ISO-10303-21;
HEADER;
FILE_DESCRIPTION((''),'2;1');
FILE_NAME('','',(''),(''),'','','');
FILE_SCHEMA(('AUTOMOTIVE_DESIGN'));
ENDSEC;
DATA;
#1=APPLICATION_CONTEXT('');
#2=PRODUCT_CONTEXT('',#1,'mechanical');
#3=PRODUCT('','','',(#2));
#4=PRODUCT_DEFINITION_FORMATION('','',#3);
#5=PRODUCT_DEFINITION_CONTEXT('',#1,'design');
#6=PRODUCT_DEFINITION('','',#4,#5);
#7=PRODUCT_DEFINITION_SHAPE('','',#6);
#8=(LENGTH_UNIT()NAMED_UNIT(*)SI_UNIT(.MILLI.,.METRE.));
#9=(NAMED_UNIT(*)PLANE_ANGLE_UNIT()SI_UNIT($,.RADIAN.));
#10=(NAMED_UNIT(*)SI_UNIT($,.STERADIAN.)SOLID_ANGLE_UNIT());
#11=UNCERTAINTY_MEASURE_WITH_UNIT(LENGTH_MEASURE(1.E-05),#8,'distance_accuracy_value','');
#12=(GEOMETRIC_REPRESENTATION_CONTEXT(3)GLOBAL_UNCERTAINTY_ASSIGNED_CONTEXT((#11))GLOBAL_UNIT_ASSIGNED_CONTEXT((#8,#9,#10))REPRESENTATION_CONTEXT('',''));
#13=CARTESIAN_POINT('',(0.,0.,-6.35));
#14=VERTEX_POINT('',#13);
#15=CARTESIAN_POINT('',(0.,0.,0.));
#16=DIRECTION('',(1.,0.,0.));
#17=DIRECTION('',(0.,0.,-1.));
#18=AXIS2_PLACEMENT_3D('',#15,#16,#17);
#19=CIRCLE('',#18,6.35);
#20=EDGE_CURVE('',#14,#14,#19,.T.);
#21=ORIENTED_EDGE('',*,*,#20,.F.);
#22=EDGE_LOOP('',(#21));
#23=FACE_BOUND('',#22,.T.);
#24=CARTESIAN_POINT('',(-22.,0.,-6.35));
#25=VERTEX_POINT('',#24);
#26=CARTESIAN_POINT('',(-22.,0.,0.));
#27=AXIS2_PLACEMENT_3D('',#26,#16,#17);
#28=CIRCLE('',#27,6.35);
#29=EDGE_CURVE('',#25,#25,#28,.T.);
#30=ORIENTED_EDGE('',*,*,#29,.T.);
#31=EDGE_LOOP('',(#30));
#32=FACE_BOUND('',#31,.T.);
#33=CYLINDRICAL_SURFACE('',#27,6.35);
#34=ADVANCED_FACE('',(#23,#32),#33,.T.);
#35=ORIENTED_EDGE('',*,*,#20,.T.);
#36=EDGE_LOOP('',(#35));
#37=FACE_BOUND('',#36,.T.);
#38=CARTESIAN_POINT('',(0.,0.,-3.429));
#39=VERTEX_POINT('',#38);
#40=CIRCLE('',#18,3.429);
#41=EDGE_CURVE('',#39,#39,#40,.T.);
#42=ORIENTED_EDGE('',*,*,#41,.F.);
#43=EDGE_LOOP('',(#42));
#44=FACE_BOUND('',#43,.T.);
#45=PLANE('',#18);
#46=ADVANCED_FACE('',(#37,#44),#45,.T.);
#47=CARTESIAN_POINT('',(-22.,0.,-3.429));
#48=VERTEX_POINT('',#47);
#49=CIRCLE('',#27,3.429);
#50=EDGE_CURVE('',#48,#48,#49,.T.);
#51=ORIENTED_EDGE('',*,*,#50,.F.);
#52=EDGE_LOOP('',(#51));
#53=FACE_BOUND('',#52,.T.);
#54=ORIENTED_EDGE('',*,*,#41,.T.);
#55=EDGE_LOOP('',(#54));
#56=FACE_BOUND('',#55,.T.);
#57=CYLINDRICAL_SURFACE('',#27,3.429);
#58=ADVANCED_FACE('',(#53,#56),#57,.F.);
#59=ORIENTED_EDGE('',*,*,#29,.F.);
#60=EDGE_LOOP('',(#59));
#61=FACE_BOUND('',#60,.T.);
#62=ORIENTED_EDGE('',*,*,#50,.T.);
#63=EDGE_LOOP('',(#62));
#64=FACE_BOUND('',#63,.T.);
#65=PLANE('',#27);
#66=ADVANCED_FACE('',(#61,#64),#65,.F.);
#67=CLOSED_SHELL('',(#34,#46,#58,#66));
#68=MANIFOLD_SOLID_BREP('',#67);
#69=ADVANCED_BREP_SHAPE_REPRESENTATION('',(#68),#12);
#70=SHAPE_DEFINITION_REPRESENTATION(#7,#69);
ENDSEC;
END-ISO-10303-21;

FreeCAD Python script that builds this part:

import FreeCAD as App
import Part
import Sketcher

V = App.Vector
Q = App.Units.Quantity

doc = App.newDocument("Part")
params = doc.addObject("Spreadsheet::Sheet", "Params")
for row, (alias, value) in enumerate([
    ("sketch1_diameter", "0.5 in"),
    ("sketch1_diameter2", "0.27 in"),
    ("pad1_length", "22 mm"),
], start=1):
    params.set(f"A{row}", alias)
    params.set(f"B{row}", "=" + value)
    params.setAlias(f"B{row}", alias)

body = doc.addObject("PartDesign::Body", "Body")

# Sketch on YZ plane
sketch1 = body.newObject("Sketcher::SketchObject", "Sketch")
sketch1.AttachmentSupport = (doc.getObject("YZ_Plane"), [""])
sketch1.MapMode = "FlatFace"
sketch1.addGeometry([
    Part.Circle(V(0, 0, 0), V(0, 0, 1), 6.3),
    Part.Circle(V(0, 0, 0), V(0, 0, 1), 3.4),
], False)
sketch1.addConstraint([
    Sketcher.Constraint("Coincident", 0, 3, -1, 1),
    Sketcher.Constraint("Coincident", 1, 3, -1, 1),
    Sketcher.Constraint("Diameter", 0, Q("0.5 in")),
    Sketcher.Constraint("Diameter", 1, Q("0.27 in")),
])
sketch1.setExpression("Constraints[2]", "Params.sketch1_diameter")
sketch1.setExpression("Constraints[3]", "Params.sketch1_diameter2")
pad1 = body.newObject("PartDesign::Pad", "Pad")
pad1.Profile = sketch1
pad1.setExpression("Length", "Params.pad1_length")
pad1.Reversed = True

doc.recompute()
